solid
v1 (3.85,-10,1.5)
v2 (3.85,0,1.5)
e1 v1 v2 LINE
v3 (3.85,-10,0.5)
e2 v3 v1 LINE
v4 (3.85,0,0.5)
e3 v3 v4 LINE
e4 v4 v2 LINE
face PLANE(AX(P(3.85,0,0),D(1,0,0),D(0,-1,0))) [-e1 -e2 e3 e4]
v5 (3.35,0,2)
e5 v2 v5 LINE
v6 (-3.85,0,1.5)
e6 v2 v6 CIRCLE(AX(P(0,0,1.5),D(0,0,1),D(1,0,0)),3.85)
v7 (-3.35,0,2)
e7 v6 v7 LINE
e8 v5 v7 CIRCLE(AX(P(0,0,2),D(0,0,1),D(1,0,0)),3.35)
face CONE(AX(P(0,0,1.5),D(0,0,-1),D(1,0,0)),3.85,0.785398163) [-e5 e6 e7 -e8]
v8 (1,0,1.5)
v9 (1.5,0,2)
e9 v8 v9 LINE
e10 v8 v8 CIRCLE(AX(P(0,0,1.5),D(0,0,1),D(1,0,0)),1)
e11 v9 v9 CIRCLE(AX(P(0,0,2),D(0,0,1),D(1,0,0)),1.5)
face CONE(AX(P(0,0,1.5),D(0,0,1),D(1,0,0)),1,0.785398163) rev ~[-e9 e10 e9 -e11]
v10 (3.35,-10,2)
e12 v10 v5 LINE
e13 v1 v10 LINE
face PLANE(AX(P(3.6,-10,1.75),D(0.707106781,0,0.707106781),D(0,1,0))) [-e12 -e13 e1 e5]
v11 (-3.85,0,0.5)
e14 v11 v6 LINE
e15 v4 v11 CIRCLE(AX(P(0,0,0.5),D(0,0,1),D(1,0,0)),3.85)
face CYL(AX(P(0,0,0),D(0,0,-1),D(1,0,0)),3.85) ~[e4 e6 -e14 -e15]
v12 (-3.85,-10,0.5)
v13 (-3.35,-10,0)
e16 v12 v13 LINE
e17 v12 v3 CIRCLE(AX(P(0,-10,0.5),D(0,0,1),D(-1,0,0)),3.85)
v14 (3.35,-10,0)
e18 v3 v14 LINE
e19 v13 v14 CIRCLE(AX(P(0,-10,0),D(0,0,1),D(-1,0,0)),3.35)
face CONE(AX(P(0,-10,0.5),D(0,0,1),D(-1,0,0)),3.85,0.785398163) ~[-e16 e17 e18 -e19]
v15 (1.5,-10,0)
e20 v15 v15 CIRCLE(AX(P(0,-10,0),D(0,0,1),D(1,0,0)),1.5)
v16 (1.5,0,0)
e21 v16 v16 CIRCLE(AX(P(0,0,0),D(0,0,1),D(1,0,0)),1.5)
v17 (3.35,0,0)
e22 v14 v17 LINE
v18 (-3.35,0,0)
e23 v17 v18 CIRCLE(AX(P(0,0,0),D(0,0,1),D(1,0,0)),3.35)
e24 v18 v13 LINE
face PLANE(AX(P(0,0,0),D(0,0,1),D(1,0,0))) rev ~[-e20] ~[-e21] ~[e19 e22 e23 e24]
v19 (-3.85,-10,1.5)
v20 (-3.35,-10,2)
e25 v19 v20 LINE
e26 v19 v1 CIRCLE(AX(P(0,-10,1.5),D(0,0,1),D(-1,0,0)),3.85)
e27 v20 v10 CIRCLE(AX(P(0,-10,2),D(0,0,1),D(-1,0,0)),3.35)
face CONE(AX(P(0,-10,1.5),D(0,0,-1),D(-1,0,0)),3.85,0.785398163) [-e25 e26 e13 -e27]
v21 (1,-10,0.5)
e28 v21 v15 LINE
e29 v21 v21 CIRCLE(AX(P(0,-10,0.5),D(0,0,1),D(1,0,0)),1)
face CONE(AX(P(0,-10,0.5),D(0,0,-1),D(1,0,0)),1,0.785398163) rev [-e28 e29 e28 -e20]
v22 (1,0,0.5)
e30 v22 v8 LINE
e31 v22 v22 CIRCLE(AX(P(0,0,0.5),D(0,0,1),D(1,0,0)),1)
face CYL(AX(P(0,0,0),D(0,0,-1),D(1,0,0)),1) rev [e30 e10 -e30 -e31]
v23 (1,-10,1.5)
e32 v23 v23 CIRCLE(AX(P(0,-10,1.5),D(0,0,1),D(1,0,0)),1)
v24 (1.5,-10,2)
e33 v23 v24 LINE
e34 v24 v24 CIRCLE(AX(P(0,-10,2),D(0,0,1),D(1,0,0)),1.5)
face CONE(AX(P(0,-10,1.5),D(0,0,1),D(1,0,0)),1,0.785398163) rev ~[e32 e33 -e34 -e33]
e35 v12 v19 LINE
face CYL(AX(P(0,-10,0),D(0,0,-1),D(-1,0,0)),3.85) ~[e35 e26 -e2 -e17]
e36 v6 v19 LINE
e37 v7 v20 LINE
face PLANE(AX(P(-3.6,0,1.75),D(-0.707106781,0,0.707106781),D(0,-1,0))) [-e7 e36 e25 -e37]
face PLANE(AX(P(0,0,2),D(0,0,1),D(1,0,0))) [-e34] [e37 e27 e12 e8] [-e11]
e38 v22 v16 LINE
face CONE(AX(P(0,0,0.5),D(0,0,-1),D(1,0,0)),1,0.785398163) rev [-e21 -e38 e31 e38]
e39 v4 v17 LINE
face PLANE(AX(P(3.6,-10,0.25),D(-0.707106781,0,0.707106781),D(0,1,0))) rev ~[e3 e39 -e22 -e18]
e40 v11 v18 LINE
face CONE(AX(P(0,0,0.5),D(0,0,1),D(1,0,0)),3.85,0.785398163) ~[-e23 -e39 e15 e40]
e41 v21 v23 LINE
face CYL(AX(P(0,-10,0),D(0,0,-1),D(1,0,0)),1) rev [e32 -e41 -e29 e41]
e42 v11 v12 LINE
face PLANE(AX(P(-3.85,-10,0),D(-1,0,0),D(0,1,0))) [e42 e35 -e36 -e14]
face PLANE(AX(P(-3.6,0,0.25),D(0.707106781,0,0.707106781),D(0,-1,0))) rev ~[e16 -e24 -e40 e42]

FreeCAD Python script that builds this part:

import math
import FreeCAD as App
import Part
import Sketcher
Q = App.Units.Quantity


def edges_at(feature, points):
    """Names of the edges that pass closest to the given points."""
    edges = feature.Shape.Edges
    near = lambda p: min(range(len(edges)), key=lambda i: edges[i].distToShape(Part.Vertex(*p))[0])
    return sorted({f"Edge{near(p) + 1}" for p in points})

doc = App.newDocument("Part")
body = doc.addObject("PartDesign::Body", "Body")

sketch1 = body.newObject("Sketcher::SketchObject", "Sketch")
sketch1.AttachmentSupport = (doc.getObject("XY_Plane"), [""])
sketch1.MapMode = "FlatFace"
sketch1.addGeometry([
    Part.LineSegment(App.Vector(3.9, -10, 0), App.Vector(3.9, 0, 0)),
    Part.ArcOfCircle(Part.Circle(App.Vector(0, 0, 0), App.Vector(0, 0, 1), 3.9), math.radians(0), math.radians(180)),
    Part.LineSegment(App.Vector(-3.9, 0, 0), App.Vector(-3.9, -10, 0)),
    Part.ArcOfCircle(Part.Circle(App.Vector(0, -10, 0), App.Vector(0, 0, 1), 3.9), math.radians(180), math.radians(360)),
    Part.Circle(App.Vector(0, -10, 0), App.Vector(0, 0, 1), 1),
    Part.Circle(App.Vector(0, 0, 0), App.Vector(0, 0, 1), 1),
], False)
sketch1.addConstraint([
    Sketcher.Constraint("Tangent", 0, 2, 1, 1),
    Sketcher.Constraint("Tangent", 1, 2, 2, 1),
    Sketcher.Constraint("Tangent", 2, 2, 3, 1),
    Sketcher.Constraint("Tangent", 3, 2, 0, 1),
    Sketcher.Constraint("Vertical", 0),
    Sketcher.Constraint("Vertical", 2),
    Sketcher.Constraint("Coincident", 1, 3, -1, 1),
    Sketcher.Constraint("Coincident", 5, 3, -1, 1),
    Sketcher.Constraint("Coincident", 4, 3, 3, 3),
    Sketcher.Constraint("Equal", 4, 5),
    Sketcher.Constraint("Diameter", 4, Q("2 mm")),
    Sketcher.Constraint("DistanceY", 0, 1, 0, 2, Q("10 mm")),
    Sketcher.Constraint("Radius", 1, Q("3.85 mm")),
])
pad1 = body.newObject("PartDesign::Pad", "Pad")
pad1.Profile = sketch1
pad1.Length = 2
doc.recompute()

chamfer = body.newObject("PartDesign::Chamfer", "Chamfer")
chamfer.Base = (pad1, edges_at(pad1, [
    (0, -13.85, 0),
    (3.85, -5, 0),
    (0, 3.85, 0),
    (-3.85, -5, 0),
    (-0.932, -9.638, 0),
    (-0.932, 0.362, 0),
    (-0.932, 0.362, 2),
    (-0.932, -9.638, 2),
    (0, -13.85, 2),
    (3.85, -5, 2),
    (0, 3.85, 2),
    (-3.85, -5, 2),
]))
chamfer.Size = 0.5

doc.recompute()
